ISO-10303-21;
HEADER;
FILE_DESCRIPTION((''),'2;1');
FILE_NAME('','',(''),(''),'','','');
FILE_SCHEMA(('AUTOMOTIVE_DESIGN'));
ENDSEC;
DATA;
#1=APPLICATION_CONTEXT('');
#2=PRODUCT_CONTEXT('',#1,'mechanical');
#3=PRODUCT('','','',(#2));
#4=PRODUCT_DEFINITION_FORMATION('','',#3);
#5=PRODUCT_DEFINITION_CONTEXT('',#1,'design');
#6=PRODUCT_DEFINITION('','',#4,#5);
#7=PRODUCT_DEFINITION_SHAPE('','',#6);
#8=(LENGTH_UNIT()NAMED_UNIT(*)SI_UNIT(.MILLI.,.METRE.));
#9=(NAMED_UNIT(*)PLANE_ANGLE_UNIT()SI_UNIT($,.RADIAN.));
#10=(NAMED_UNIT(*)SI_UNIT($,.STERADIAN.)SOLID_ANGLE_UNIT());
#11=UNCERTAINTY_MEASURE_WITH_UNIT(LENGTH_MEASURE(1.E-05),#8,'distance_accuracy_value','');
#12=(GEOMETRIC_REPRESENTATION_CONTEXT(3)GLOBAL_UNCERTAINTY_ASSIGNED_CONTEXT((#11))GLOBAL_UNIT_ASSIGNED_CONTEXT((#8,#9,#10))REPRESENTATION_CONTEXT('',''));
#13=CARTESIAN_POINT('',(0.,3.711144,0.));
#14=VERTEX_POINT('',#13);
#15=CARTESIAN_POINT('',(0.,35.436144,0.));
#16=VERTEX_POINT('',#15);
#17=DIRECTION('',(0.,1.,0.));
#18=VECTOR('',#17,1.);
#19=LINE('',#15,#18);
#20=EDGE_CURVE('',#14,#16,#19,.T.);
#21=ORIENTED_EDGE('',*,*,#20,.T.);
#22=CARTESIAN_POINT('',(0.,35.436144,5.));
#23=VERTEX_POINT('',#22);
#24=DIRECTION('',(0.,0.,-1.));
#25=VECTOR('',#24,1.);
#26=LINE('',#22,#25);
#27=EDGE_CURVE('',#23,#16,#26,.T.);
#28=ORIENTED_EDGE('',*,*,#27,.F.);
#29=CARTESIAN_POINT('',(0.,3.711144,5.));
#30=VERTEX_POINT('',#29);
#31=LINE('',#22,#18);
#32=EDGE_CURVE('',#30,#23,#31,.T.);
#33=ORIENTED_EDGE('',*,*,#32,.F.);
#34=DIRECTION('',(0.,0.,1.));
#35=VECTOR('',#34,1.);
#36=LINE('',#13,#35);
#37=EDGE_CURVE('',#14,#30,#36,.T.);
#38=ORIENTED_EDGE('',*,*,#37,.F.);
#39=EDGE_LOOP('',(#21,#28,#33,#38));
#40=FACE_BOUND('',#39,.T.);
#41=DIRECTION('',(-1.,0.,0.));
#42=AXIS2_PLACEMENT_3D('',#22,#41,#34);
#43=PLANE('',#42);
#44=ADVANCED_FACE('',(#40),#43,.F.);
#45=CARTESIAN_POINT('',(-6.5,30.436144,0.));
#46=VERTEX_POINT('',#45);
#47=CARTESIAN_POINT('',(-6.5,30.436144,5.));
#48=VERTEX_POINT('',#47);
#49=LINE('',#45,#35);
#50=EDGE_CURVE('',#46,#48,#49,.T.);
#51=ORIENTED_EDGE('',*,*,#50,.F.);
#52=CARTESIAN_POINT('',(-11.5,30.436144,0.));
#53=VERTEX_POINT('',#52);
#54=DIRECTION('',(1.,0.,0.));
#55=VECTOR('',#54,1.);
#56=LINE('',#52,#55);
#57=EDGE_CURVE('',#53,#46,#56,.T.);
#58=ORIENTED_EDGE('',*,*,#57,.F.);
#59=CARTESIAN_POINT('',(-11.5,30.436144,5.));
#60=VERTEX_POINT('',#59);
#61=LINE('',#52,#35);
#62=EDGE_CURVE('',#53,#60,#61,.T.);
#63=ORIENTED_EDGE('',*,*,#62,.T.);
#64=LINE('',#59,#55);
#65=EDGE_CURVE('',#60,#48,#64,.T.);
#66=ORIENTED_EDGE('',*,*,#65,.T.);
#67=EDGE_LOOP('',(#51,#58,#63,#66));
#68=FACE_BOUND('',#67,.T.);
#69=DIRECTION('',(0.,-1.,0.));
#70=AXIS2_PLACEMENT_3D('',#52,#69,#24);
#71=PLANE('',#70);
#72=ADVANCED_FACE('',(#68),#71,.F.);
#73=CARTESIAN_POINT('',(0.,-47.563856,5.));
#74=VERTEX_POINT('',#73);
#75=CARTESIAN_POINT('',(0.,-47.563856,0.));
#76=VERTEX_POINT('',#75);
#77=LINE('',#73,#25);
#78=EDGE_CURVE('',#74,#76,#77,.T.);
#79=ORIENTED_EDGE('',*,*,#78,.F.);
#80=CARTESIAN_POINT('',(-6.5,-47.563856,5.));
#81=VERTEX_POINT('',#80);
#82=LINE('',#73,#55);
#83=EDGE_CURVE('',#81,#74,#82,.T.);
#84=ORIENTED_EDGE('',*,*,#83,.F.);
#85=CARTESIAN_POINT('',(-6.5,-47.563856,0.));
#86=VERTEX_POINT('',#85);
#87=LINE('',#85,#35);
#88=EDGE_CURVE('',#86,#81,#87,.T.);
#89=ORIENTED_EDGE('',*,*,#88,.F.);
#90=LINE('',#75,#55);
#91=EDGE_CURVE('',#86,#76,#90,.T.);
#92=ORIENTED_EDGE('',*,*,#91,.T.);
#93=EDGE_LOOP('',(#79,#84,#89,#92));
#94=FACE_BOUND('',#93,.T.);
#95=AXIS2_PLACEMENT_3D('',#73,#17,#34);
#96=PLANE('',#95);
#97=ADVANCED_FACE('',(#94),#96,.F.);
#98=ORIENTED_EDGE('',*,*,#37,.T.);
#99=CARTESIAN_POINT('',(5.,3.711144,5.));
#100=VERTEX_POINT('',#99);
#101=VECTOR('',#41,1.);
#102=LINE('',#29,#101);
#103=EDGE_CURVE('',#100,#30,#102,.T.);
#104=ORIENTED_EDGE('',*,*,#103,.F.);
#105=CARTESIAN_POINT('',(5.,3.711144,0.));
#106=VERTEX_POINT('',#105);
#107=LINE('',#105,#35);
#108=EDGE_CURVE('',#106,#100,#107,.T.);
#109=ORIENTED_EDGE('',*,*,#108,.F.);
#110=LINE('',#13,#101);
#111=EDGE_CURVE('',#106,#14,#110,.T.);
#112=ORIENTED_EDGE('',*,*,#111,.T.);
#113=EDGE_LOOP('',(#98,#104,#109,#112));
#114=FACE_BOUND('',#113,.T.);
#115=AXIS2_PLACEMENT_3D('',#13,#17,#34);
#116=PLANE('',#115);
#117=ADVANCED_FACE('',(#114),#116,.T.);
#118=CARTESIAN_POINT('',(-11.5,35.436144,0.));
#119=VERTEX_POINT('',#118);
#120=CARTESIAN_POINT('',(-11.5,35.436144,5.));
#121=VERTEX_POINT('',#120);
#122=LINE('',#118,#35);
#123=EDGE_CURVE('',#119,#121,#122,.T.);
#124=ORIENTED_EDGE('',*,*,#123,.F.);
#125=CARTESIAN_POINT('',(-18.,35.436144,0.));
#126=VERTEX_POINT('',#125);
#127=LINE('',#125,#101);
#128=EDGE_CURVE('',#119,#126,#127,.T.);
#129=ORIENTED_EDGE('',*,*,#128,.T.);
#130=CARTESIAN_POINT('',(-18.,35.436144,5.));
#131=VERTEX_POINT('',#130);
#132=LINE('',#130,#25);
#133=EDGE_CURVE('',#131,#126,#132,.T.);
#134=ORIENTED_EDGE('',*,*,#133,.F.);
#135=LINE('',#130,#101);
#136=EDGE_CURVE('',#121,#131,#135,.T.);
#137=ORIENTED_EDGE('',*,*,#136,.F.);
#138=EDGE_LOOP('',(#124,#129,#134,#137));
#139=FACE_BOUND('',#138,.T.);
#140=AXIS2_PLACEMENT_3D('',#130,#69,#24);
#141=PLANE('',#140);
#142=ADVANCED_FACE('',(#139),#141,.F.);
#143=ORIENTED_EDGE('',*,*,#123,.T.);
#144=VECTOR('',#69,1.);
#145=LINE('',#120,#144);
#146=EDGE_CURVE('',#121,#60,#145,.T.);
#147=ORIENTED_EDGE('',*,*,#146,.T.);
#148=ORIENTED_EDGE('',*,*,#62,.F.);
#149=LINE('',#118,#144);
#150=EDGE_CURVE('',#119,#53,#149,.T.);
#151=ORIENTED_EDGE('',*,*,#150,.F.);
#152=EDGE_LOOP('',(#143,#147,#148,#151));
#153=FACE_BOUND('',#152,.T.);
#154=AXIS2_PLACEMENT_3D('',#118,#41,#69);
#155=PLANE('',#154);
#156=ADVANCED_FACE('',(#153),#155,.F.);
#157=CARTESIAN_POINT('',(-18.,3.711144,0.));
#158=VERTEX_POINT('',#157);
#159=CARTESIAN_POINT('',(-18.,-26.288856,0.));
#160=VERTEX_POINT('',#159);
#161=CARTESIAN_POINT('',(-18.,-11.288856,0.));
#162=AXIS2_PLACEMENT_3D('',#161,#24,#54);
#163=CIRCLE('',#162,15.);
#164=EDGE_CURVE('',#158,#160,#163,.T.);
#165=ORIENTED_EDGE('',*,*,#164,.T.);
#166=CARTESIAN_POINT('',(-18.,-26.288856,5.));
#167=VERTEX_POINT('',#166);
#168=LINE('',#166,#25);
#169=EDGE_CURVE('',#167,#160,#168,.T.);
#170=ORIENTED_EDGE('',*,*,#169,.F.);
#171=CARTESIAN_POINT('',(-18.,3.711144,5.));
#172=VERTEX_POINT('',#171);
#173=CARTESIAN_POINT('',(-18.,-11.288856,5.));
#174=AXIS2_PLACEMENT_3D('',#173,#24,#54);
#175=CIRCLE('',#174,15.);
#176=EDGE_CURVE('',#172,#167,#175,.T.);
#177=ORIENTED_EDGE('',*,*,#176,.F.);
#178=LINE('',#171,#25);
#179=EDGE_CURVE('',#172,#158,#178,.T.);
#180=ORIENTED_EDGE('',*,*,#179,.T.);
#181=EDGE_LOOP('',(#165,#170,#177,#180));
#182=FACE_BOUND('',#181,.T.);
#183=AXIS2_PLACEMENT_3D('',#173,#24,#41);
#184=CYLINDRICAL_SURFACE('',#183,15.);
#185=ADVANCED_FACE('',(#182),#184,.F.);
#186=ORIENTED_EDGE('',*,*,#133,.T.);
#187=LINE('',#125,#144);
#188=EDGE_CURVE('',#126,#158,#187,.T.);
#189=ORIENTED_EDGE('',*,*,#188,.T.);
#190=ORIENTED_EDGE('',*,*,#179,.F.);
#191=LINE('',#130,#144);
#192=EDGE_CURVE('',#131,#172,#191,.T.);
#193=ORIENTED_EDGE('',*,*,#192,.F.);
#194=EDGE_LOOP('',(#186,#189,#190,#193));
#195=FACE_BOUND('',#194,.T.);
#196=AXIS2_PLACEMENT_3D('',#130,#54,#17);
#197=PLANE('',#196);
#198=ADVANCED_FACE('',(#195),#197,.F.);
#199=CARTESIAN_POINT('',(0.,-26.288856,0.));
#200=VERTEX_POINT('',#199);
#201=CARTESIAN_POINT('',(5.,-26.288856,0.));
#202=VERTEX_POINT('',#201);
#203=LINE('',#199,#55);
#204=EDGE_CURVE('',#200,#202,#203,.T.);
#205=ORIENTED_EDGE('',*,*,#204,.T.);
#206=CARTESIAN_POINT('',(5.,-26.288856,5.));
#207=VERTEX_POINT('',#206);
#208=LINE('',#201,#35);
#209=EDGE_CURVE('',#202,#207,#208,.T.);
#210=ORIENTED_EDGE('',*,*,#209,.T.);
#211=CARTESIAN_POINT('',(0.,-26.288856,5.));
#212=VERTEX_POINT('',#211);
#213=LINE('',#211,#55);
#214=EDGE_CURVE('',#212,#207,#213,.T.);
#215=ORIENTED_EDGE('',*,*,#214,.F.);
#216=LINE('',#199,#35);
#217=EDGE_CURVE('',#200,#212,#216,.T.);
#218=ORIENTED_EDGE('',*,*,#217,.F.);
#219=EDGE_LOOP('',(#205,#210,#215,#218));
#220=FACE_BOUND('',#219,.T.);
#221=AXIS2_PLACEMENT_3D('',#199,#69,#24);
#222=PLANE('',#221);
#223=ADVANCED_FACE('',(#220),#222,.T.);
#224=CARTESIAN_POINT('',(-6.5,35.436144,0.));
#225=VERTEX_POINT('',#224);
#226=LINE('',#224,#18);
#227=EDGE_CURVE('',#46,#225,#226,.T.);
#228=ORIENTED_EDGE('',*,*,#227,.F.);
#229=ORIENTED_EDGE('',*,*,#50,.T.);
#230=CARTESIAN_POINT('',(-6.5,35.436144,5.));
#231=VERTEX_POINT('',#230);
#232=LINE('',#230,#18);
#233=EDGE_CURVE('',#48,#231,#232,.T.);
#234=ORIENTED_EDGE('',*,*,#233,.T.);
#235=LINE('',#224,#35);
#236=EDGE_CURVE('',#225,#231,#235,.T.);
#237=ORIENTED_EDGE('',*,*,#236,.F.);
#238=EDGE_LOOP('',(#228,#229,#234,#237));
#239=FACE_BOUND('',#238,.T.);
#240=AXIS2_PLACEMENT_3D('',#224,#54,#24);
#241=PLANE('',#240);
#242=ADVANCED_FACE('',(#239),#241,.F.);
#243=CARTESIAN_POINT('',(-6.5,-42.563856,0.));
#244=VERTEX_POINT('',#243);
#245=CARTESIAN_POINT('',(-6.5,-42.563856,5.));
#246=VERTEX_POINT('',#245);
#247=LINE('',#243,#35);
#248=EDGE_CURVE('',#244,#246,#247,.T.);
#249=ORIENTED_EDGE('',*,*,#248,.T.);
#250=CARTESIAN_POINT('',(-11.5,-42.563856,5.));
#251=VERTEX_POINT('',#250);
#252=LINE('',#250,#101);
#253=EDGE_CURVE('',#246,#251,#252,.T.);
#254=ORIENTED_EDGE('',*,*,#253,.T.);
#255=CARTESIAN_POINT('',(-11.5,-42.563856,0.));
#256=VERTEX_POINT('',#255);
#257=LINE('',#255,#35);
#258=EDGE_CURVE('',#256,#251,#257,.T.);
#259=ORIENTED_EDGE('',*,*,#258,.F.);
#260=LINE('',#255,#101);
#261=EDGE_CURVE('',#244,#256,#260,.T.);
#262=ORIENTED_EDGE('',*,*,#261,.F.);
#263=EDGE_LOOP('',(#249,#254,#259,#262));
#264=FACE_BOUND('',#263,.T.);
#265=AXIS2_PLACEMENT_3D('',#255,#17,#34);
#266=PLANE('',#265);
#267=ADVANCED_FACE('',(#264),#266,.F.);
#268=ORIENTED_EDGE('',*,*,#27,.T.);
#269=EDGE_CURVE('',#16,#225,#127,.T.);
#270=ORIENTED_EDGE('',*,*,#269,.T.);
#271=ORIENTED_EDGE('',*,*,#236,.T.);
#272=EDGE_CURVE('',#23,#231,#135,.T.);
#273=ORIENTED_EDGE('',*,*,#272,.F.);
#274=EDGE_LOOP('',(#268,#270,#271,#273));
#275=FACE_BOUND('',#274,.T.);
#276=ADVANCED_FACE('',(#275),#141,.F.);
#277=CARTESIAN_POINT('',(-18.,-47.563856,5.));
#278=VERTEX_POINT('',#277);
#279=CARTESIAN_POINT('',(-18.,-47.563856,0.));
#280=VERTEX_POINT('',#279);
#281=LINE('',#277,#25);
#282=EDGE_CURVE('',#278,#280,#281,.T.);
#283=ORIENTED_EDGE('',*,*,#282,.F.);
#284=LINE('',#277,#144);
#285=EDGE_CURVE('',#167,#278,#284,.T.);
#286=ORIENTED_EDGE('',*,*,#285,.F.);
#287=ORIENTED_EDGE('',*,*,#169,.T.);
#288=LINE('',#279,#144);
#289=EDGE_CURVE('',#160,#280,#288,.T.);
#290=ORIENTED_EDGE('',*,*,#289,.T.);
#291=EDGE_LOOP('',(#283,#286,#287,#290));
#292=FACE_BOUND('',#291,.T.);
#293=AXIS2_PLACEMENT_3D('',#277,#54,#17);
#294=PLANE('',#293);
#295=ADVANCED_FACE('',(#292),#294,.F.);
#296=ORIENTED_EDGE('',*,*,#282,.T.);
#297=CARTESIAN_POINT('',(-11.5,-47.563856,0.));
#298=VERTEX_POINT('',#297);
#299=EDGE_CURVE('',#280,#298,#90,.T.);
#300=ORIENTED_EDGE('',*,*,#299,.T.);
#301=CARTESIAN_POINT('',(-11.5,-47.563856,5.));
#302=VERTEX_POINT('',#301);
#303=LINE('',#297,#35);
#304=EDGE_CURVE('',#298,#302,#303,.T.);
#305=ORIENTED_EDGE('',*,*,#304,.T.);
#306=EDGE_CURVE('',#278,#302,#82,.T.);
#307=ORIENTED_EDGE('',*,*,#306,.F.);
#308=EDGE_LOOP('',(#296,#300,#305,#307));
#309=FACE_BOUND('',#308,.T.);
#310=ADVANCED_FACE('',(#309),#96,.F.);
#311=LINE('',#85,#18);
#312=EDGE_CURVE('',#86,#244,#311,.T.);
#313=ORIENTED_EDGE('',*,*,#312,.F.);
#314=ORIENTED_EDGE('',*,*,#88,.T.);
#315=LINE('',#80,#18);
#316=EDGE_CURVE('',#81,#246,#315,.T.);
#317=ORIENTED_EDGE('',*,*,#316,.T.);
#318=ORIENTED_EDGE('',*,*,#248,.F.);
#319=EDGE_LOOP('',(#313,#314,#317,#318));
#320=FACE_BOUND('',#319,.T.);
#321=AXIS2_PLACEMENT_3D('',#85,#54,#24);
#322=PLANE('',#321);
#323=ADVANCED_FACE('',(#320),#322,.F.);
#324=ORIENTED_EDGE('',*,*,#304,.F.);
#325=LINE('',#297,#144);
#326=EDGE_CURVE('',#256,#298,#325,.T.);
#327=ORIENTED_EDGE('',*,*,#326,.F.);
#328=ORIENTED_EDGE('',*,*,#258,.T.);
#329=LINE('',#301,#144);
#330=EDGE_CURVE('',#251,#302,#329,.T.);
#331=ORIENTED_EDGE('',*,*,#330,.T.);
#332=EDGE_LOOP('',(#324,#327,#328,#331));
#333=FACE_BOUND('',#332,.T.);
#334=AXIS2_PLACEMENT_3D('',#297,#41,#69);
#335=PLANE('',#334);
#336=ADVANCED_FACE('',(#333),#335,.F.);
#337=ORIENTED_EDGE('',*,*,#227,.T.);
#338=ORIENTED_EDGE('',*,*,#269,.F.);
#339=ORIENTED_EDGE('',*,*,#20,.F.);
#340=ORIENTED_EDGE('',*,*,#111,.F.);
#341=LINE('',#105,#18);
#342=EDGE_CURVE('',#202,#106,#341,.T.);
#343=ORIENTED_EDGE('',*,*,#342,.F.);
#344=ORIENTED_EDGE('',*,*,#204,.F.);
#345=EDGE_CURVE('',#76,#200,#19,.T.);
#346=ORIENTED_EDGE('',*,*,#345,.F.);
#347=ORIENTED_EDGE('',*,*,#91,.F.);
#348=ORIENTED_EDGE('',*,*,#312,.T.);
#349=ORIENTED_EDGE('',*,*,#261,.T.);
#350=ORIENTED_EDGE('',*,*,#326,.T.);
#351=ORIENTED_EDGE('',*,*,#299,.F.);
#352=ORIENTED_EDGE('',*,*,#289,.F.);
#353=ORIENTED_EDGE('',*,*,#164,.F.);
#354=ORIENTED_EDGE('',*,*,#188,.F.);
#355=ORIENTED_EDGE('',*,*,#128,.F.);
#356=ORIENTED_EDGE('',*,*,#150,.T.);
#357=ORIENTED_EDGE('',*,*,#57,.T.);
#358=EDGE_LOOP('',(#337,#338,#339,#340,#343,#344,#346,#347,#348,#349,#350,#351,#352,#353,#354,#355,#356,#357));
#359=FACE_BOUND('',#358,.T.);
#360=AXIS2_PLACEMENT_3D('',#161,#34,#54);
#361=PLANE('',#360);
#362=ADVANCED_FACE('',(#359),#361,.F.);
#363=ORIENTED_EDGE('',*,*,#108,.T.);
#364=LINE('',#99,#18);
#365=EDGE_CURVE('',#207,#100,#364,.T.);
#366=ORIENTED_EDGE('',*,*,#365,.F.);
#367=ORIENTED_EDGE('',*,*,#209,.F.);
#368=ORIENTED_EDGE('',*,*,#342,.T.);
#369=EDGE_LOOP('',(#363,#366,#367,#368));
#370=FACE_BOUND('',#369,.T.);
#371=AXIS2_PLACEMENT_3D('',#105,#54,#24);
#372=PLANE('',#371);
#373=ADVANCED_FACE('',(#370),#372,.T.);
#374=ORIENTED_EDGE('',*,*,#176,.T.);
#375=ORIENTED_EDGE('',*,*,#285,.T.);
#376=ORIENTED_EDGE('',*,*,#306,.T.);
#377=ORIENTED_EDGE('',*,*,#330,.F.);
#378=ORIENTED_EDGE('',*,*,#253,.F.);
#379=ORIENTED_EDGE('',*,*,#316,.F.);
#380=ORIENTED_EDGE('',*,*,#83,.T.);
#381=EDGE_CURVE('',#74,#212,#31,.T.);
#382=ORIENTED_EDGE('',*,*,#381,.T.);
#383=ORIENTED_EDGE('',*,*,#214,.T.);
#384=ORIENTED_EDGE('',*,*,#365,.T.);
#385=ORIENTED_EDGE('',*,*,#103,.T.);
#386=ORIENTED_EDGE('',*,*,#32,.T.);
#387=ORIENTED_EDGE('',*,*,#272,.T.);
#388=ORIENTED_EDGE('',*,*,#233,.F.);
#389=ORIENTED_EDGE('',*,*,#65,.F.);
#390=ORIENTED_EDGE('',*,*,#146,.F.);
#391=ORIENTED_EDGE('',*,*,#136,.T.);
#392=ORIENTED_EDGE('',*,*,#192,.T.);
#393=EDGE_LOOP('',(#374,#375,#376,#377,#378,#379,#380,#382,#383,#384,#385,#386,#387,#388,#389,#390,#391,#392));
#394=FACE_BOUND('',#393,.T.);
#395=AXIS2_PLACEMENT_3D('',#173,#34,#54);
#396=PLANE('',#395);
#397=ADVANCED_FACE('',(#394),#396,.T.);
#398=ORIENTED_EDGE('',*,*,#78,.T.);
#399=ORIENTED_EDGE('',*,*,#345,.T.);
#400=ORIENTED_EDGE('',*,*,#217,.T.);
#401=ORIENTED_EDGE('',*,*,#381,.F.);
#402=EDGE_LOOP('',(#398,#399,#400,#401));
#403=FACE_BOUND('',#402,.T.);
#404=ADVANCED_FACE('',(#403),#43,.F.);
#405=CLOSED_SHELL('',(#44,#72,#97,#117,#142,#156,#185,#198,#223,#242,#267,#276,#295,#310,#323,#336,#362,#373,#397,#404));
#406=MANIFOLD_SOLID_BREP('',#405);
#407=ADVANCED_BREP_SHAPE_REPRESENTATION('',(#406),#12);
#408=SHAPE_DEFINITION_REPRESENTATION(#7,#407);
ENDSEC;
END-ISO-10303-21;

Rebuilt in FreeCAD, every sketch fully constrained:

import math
import FreeCAD as App
import Part
import Sketcher
Q = App.Units.Quantity

doc = App.newDocument("Part")
body = doc.addObject("PartDesign::Body", "Body")

sketch1 = body.newObject("Sketcher::SketchObject", "Sketch")
sketch1.AttachmentSupport = (doc.getObject("XY_Plane"), [""])
sketch1.MapMode = "FlatFace"
sketch1.addGeometry([
    Part.LineSegment(App.Vector(0, 35.436144, 0), App.Vector(-18, 35.436144, 0)),
    Part.LineSegment(App.Vector(-18, 35.436144, 0), App.Vector(-18, 3.711144, 0)),
    Part.ArcOfCircle(Part.Circle(App.Vector(-18, -11.288856, 0), App.Vector(0, 0, 1), 15), math.radians(-90), math.radians(90)),
    Part.LineSegment(App.Vector(-18, -26.288856, 0), App.Vector(-18, -47.563856, 0)),
    Part.LineSegment(App.Vector(-18, -47.563856, 0), App.Vector(0, -47.563856, 0)),
    Part.LineSegment(App.Vector(0, -47.563856, 0), App.Vector(0, 35.436144, 0)),
], False)
sketch1.addConstraint([
    Sketcher.Constraint("Coincident", 0, 2, 1, 1),
    Sketcher.Constraint("Coincident", 1, 2, 2, 2),
    Sketcher.Constraint("Coincident", 2, 1, 3, 1),
    Sketcher.Constraint("Coincident", 3, 2, 4, 1),
    Sketcher.Constraint("Coincident", 4, 2, 5, 1),
    Sketcher.Constraint("Coincident", 5, 2, 0, 1),
    Sketcher.Constraint("Horizontal", 0),
    Sketcher.Constraint("Vertical", 1),
    Sketcher.Constraint("Vertical", 3),
    Sketcher.Constraint("Horizontal", 4),
    Sketcher.Constraint("Vertical", 5),
    Sketcher.Constraint("PointOnObject", 4, 2, -2),
    Sketcher.Constraint("Vertical", 2, 3, 0, 2),
    Sketcher.Constraint("Vertical", 1, 2, 2, 1),
    Sketcher.Constraint("Radius", 2, Q("15 mm")),
    Sketcher.Constraint("DistanceX", 0, 2, 0, 1, Q("18 mm")),
    Sketcher.Constraint("DistanceY", 5, 1, 5, 2, Q("83 mm")),
    Sketcher.Constraint("DistanceY", 1, 2, 1, 1, Q("31.725 mm")),
    Sketcher.Constraint("DistanceY", 2, 3, -1, 1, Q("11.288856 mm")),
])
pad1 = body.newObject("PartDesign::Pad", "Pad")
pad1.Profile = sketch1
pad1.Length = 5

sketch2 = body.newObject("Sketcher::SketchObject", "Sketch001")
sketch2.AttachmentSupport = (doc.getObject("XY_Plane"), [""])
sketch2.MapMode = "FlatFace"
sketch2.AttachmentOffset = App.Placement(App.Vector(0, 0, 5), App.Rotation())
sketch2.addGeometry([
    Part.LineSegment(App.Vector(-11.5, 35.436144, 0), App.Vector(-11.5, 30.436144, 0)),
    Part.LineSegment(App.Vector(-11.5, 30.436144, 0), App.Vector(-6.5, 30.436144, 0)),
    Part.LineSegment(App.Vector(-6.5, 30.436144, 0), App.Vector(-6.5, 35.436144, 0)),
    Part.LineSegment(App.Vector(-6.5, 35.436144, 0), App.Vector(-11.5, 35.436144, 0)),
    Part.LineSegment(App.Vector(-11.5, -42.563856, 0), App.Vector(-11.5, -47.563856, 0)),
    Part.LineSegment(App.Vector(-11.5, -47.563856, 0), App.Vector(-6.5, -47.563856, 0)),
    Part.LineSegment(App.Vector(-6.5, -47.563856, 0), App.Vector(-6.5, -42.563856, 0)),
    Part.LineSegment(App.Vector(-6.5, -42.563856, 0), App.Vector(-11.5, -42.563856, 0)),
], False)
sketch2.addConstraint([
    Sketcher.Constraint("Coincident", 0, 2, 1, 1),
    Sketcher.Constraint("Coincident", 1, 2, 2, 1),
    Sketcher.Constraint("Coincident", 2, 2, 3, 1),
    Sketcher.Constraint("Coincident", 3, 2, 0, 1),
    Sketcher.Constraint("Coincident", 4, 2, 5, 1),
    Sketcher.Constraint("Coincident", 5, 2, 6, 1),
    Sketcher.Constraint("Coincident", 6, 2, 7, 1),
    Sketcher.Constraint("Coincident", 7, 2, 4, 1),
    Sketcher.Constraint("Vertical", 0),
    Sketcher.Constraint("Horizontal", 1),
    Sketcher.Constraint("Vertical", 2),
    Sketcher.Constraint("Horizontal", 3),
    Sketcher.Constraint("Vertical", 4),
    Sketcher.Constraint("Horizontal", 5),
    Sketcher.Constraint("Vertical", 6),
    Sketcher.Constraint("Horizontal", 7),
    Sketcher.Constraint("Vertical", 3, 2, 4, 2),
    Sketcher.Constraint("Vertical", 2, 2, 5, 2),
    Sketcher.Constraint("Equal", 7, 0),
    Sketcher.Constraint("Equal", 2, 4),
    Sketcher.Constraint("DistanceX", 1, 1, 1, 2, Q("5 mm")),
    Sketcher.Constraint("DistanceY", 4, 2, 0, 2, Q("78 mm")),
    Sketcher.Constraint("DistanceX", 0, 2, -1, 1, Q("11.5 mm")),
    Sketcher.Constraint("DistanceY", -1, 1, 0, 2, Q("30.436144 mm")),
])
pocket1 = body.newObject("PartDesign::Pocket", "Pocket")
pocket1.Profile = sketch2
pocket1.Length = 5

sketch3 = body.newObject("Sketcher::SketchObject", "Sketch002")
sketch3.AttachmentSupport = (doc.getObject("XY_Plane"), [""])
sketch3.MapMode = "FlatFace"
sketch3.AttachmentOffset = App.Placement(App.Vector(0, 0, 5), App.Rotation())
sketch3.addGeometry([
    Part.LineSegment(App.Vector(0, 3.711144, 0), App.Vector(0, -26.288856, 0)),
    Part.LineSegment(App.Vector(0, -26.288856, 0), App.Vector(5, -26.288856, 0)),
    Part.LineSegment(App.Vector(5, -26.288856, 0), App.Vector(5, 3.711144, 0)),
    Part.LineSegment(App.Vector(5, 3.711144, 0), App.Vector(0, 3.711144, 0)),
], False)
sketch3.addConstraint([
    Sketcher.Constraint("Coincident", 0, 2, 1, 1),
    Sketcher.Constraint("Coincident", 1, 2, 2, 1),
    Sketcher.Constraint("Coincident", 2, 2, 3, 1),
    Sketcher.Constraint("Coincident", 3, 2, 0, 1),
    Sketcher.Constraint("Vertical", 0),
    Sketcher.Constraint("Horizontal", 1),
    Sketcher.Constraint("Vertical", 2),
    Sketcher.Constraint("Horizontal", 3),
    Sketcher.Constraint("PointOnObject", 0, 2, -2),
    Sketcher.Constraint("DistanceX", 1, 1, 1, 2, Q("5 mm")),
    Sketcher.Constraint("DistanceY", 0, 2, 0, 1, Q("30 mm")),
    Sketcher.Constraint("DistanceY", 0, 2, -1, 1, Q("26.288856 mm")),
])
pad2 = body.newObject("PartDesign::Pad", "Pad001")
pad2.Profile = sketch3
pad2.Length = 5
pad2.Reversed = True

doc.recompute()
